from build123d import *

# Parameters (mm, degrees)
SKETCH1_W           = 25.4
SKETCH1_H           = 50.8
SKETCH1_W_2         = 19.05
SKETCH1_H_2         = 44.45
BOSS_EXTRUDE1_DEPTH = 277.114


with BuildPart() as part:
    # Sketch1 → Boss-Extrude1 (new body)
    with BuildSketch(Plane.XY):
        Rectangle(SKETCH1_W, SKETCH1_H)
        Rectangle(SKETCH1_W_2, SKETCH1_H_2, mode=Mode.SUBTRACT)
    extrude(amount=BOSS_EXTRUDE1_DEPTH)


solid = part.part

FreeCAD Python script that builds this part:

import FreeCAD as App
import Part
import Sketcher
Q = App.Units.Quantity


def add_polygon(sketch, points):
    """Adds a closed chain of lines whose ends are joined by coincident constraints."""
    first, n = sketch.GeometryCount, len(points)
    for a, b in zip(points, points[1:] + points[:1]):
        sketch.addGeometry(Part.LineSegment(App.Vector(*a, 0), App.Vector(*b, 0)), False)
    for i in range(n):
        sketch.addConstraint(Sketcher.Constraint("Coincident", first + i, 2, first + (i + 1) % n, 1))

doc = App.newDocument("Part")
body = doc.addObject("PartDesign::Body", "Body")

sketch1 = doc.addObject("Sketcher::SketchObject", "Sketch")
body.addObject(sketch1)
sketch1.AttachmentSupport = (doc.XY_Plane, [""])
sketch1.MapMode = "FlatFace"
add_polygon(sketch1, [(-13, 25), (-13, -25), (13, -25), (13, 25)])
add_polygon(sketch1, [(10, -22), (-10, -22), (-10, 22), (10, 22)])
sketch1.addConstraint([
    Sketcher.Constraint("Vertical", 0),
    Sketcher.Constraint("Horizontal", 1),
    Sketcher.Constraint("Vertical", 2),
    Sketcher.Constraint("Horizontal", 3),
    Sketcher.Constraint("Horizontal", 4),
    Sketcher.Constraint("Vertical", 5),
    Sketcher.Constraint("Horizontal", 6),
    Sketcher.Constraint("Vertical", 7),
    Sketcher.Constraint("Symmetric", 0, 2, 2, 2, -1, 1),
    Sketcher.Constraint("Symmetric", 4, 2, 6, 2, -1, 1),
    Sketcher.Constraint("DistanceX", 1, 1, 1, 2, Q("1 in")),
    Sketcher.Constraint("DistanceY", 0, 2, 0, 1, Q("2 in")),
    Sketcher.Constraint("DistanceX", 4, 2, 4, 1, Q("0.75 in")),
    Sketcher.Constraint("DistanceY", 5, 1, 5, 2, Q("1.75 in")),
])
pad1 = doc.addObject("PartDesign::Pad", "Pad")
body.addObject(pad1)
pad1.Profile = sketch1
pad1.Length = Q("10.91 in")

doc.recompute()
